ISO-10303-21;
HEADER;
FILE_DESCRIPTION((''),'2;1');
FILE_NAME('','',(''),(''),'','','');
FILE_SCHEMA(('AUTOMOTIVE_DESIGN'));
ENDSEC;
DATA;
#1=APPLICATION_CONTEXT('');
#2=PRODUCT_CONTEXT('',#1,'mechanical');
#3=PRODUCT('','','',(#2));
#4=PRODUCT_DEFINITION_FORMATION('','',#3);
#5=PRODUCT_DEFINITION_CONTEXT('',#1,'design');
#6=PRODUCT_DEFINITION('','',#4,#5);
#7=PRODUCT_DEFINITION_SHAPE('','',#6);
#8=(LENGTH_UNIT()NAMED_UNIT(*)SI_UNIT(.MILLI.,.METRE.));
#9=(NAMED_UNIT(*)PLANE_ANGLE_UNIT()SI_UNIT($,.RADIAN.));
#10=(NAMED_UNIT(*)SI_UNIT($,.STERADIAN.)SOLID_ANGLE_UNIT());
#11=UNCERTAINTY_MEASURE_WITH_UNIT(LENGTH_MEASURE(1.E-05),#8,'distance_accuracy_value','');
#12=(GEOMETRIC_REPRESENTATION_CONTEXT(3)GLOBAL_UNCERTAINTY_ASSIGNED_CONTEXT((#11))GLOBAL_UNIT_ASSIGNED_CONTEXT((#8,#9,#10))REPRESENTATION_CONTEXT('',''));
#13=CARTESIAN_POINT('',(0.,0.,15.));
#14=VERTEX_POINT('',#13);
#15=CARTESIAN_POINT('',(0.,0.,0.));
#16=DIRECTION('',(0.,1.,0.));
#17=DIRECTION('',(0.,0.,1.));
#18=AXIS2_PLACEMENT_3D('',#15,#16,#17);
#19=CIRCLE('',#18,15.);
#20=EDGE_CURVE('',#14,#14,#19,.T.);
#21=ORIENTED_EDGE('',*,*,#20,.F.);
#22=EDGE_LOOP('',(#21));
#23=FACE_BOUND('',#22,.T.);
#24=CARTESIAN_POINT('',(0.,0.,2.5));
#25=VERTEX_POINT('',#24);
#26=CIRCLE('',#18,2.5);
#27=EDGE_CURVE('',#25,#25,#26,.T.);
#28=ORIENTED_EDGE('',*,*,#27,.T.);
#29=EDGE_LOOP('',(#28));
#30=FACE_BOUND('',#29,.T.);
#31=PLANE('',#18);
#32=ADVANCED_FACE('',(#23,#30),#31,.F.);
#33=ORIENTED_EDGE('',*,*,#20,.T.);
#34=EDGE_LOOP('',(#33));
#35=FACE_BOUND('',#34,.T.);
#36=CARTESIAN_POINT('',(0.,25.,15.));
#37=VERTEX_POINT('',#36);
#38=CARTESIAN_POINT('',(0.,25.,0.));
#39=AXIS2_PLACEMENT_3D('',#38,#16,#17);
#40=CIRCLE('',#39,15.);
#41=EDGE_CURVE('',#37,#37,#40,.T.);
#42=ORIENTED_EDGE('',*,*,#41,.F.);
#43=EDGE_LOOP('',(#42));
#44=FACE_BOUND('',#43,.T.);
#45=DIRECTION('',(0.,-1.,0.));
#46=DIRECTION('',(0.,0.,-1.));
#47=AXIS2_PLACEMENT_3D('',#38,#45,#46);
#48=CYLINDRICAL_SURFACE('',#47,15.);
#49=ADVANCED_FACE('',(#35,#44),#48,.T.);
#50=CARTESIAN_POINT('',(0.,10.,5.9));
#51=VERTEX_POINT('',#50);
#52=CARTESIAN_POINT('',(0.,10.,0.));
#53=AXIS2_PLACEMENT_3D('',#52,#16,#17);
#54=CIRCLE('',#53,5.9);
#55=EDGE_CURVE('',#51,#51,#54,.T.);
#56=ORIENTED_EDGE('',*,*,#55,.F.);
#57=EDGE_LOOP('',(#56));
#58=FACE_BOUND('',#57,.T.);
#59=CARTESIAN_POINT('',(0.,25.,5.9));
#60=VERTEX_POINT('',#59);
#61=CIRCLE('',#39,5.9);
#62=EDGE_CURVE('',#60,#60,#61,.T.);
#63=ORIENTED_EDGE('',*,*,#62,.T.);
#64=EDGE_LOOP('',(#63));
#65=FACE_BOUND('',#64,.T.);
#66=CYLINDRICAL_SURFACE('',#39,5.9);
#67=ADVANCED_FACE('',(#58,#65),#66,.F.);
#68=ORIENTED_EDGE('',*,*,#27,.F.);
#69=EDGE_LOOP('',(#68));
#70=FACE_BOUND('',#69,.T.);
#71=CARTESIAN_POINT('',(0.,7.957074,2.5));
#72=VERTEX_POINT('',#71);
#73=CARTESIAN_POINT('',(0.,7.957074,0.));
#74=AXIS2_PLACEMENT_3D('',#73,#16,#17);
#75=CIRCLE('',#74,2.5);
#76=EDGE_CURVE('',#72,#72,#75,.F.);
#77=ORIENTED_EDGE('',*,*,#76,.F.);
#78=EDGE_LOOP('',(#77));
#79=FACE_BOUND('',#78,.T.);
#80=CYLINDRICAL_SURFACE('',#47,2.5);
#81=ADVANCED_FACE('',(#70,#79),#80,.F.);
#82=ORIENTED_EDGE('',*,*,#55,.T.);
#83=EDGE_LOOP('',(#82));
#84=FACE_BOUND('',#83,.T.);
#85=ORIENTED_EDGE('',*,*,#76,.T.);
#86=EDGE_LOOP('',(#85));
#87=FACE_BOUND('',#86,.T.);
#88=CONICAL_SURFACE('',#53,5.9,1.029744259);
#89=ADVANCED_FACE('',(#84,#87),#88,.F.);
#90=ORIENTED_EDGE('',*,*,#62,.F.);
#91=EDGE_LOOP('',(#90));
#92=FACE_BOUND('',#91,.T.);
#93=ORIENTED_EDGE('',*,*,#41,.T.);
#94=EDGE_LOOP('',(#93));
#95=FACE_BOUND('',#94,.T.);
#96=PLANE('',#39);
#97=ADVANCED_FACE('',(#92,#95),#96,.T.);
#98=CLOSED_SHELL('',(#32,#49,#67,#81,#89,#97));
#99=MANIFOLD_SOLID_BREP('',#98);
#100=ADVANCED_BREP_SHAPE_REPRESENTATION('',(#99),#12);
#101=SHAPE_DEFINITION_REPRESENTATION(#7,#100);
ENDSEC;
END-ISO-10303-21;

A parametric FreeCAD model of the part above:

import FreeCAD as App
import Part
import Sketcher
from FreeCAD import Vector
Q = App.Units.Quantity

doc = App.newDocument("Part")
body = doc.addObject("PartDesign::Body", "Body")

sketch1 = body.newObject("Sketcher::SketchObject", "Sketch")
sketch1.AttachmentSupport = (doc.getObject("XZ_Plane"), [""])
sketch1.MapMode = "FlatFace"
sketch1.addGeometry(Part.Circle(Vector(0, 0, 0), Vector(0, 0, 1), 15), False)
sketch1.addGeometry(Part.Circle(Vector(0, 0, 0), Vector(0, 0, 1), 2.5), False)
sketch1.addConstraint(Sketcher.Constraint("Coincident", 0, 3, -1, 1))
sketch1.addConstraint(Sketcher.Constraint("Coincident", 1, 3, -1, 1))
sketch1.addConstraint(Sketcher.Constraint("Diameter", 0, Q("30 mm")))
sketch1.addConstraint(Sketcher.Constraint("Diameter", 1, Q("5 mm")))
pad1 = body.newObject("PartDesign::Pad", "Pad")
pad1.Profile = sketch1
pad1.Length = 25
pad1.Reversed = True

sketch2 = body.newObject("Sketcher::SketchObject", "Sketch001")
sketch2.AttachmentSupport = (doc.getObject("XZ_Plane"), [""])
sketch2.MapMode = "FlatFace"
sketch2.AttachmentOffset = App.Placement(Vector(0, 0, -25), App.Rotation())
sketch2.addGeometry(Part.Circle(Vector(0, 0, 0), Vector(0, 0, 1), 6), False)
sketch2.addConstraint(Sketcher.Constraint("Coincident", 0, 3, -1, 1))
sketch2.addConstraint(Sketcher.Constraint("Diameter", 0, Q("11.8 mm")))
doc.recompute()
hole = body.newObject("PartDesign::Hole", "Hole")
hole.Profile = sketch2
hole.ThreadType = "None"
hole.Diameter = 11.8
hole.DepthType = "Dimension"
hole.Depth = 15
hole.DrillPoint = "Angled"
hole.DrillPointAngle = 118
hole.Reversed = True

doc.recompute()
